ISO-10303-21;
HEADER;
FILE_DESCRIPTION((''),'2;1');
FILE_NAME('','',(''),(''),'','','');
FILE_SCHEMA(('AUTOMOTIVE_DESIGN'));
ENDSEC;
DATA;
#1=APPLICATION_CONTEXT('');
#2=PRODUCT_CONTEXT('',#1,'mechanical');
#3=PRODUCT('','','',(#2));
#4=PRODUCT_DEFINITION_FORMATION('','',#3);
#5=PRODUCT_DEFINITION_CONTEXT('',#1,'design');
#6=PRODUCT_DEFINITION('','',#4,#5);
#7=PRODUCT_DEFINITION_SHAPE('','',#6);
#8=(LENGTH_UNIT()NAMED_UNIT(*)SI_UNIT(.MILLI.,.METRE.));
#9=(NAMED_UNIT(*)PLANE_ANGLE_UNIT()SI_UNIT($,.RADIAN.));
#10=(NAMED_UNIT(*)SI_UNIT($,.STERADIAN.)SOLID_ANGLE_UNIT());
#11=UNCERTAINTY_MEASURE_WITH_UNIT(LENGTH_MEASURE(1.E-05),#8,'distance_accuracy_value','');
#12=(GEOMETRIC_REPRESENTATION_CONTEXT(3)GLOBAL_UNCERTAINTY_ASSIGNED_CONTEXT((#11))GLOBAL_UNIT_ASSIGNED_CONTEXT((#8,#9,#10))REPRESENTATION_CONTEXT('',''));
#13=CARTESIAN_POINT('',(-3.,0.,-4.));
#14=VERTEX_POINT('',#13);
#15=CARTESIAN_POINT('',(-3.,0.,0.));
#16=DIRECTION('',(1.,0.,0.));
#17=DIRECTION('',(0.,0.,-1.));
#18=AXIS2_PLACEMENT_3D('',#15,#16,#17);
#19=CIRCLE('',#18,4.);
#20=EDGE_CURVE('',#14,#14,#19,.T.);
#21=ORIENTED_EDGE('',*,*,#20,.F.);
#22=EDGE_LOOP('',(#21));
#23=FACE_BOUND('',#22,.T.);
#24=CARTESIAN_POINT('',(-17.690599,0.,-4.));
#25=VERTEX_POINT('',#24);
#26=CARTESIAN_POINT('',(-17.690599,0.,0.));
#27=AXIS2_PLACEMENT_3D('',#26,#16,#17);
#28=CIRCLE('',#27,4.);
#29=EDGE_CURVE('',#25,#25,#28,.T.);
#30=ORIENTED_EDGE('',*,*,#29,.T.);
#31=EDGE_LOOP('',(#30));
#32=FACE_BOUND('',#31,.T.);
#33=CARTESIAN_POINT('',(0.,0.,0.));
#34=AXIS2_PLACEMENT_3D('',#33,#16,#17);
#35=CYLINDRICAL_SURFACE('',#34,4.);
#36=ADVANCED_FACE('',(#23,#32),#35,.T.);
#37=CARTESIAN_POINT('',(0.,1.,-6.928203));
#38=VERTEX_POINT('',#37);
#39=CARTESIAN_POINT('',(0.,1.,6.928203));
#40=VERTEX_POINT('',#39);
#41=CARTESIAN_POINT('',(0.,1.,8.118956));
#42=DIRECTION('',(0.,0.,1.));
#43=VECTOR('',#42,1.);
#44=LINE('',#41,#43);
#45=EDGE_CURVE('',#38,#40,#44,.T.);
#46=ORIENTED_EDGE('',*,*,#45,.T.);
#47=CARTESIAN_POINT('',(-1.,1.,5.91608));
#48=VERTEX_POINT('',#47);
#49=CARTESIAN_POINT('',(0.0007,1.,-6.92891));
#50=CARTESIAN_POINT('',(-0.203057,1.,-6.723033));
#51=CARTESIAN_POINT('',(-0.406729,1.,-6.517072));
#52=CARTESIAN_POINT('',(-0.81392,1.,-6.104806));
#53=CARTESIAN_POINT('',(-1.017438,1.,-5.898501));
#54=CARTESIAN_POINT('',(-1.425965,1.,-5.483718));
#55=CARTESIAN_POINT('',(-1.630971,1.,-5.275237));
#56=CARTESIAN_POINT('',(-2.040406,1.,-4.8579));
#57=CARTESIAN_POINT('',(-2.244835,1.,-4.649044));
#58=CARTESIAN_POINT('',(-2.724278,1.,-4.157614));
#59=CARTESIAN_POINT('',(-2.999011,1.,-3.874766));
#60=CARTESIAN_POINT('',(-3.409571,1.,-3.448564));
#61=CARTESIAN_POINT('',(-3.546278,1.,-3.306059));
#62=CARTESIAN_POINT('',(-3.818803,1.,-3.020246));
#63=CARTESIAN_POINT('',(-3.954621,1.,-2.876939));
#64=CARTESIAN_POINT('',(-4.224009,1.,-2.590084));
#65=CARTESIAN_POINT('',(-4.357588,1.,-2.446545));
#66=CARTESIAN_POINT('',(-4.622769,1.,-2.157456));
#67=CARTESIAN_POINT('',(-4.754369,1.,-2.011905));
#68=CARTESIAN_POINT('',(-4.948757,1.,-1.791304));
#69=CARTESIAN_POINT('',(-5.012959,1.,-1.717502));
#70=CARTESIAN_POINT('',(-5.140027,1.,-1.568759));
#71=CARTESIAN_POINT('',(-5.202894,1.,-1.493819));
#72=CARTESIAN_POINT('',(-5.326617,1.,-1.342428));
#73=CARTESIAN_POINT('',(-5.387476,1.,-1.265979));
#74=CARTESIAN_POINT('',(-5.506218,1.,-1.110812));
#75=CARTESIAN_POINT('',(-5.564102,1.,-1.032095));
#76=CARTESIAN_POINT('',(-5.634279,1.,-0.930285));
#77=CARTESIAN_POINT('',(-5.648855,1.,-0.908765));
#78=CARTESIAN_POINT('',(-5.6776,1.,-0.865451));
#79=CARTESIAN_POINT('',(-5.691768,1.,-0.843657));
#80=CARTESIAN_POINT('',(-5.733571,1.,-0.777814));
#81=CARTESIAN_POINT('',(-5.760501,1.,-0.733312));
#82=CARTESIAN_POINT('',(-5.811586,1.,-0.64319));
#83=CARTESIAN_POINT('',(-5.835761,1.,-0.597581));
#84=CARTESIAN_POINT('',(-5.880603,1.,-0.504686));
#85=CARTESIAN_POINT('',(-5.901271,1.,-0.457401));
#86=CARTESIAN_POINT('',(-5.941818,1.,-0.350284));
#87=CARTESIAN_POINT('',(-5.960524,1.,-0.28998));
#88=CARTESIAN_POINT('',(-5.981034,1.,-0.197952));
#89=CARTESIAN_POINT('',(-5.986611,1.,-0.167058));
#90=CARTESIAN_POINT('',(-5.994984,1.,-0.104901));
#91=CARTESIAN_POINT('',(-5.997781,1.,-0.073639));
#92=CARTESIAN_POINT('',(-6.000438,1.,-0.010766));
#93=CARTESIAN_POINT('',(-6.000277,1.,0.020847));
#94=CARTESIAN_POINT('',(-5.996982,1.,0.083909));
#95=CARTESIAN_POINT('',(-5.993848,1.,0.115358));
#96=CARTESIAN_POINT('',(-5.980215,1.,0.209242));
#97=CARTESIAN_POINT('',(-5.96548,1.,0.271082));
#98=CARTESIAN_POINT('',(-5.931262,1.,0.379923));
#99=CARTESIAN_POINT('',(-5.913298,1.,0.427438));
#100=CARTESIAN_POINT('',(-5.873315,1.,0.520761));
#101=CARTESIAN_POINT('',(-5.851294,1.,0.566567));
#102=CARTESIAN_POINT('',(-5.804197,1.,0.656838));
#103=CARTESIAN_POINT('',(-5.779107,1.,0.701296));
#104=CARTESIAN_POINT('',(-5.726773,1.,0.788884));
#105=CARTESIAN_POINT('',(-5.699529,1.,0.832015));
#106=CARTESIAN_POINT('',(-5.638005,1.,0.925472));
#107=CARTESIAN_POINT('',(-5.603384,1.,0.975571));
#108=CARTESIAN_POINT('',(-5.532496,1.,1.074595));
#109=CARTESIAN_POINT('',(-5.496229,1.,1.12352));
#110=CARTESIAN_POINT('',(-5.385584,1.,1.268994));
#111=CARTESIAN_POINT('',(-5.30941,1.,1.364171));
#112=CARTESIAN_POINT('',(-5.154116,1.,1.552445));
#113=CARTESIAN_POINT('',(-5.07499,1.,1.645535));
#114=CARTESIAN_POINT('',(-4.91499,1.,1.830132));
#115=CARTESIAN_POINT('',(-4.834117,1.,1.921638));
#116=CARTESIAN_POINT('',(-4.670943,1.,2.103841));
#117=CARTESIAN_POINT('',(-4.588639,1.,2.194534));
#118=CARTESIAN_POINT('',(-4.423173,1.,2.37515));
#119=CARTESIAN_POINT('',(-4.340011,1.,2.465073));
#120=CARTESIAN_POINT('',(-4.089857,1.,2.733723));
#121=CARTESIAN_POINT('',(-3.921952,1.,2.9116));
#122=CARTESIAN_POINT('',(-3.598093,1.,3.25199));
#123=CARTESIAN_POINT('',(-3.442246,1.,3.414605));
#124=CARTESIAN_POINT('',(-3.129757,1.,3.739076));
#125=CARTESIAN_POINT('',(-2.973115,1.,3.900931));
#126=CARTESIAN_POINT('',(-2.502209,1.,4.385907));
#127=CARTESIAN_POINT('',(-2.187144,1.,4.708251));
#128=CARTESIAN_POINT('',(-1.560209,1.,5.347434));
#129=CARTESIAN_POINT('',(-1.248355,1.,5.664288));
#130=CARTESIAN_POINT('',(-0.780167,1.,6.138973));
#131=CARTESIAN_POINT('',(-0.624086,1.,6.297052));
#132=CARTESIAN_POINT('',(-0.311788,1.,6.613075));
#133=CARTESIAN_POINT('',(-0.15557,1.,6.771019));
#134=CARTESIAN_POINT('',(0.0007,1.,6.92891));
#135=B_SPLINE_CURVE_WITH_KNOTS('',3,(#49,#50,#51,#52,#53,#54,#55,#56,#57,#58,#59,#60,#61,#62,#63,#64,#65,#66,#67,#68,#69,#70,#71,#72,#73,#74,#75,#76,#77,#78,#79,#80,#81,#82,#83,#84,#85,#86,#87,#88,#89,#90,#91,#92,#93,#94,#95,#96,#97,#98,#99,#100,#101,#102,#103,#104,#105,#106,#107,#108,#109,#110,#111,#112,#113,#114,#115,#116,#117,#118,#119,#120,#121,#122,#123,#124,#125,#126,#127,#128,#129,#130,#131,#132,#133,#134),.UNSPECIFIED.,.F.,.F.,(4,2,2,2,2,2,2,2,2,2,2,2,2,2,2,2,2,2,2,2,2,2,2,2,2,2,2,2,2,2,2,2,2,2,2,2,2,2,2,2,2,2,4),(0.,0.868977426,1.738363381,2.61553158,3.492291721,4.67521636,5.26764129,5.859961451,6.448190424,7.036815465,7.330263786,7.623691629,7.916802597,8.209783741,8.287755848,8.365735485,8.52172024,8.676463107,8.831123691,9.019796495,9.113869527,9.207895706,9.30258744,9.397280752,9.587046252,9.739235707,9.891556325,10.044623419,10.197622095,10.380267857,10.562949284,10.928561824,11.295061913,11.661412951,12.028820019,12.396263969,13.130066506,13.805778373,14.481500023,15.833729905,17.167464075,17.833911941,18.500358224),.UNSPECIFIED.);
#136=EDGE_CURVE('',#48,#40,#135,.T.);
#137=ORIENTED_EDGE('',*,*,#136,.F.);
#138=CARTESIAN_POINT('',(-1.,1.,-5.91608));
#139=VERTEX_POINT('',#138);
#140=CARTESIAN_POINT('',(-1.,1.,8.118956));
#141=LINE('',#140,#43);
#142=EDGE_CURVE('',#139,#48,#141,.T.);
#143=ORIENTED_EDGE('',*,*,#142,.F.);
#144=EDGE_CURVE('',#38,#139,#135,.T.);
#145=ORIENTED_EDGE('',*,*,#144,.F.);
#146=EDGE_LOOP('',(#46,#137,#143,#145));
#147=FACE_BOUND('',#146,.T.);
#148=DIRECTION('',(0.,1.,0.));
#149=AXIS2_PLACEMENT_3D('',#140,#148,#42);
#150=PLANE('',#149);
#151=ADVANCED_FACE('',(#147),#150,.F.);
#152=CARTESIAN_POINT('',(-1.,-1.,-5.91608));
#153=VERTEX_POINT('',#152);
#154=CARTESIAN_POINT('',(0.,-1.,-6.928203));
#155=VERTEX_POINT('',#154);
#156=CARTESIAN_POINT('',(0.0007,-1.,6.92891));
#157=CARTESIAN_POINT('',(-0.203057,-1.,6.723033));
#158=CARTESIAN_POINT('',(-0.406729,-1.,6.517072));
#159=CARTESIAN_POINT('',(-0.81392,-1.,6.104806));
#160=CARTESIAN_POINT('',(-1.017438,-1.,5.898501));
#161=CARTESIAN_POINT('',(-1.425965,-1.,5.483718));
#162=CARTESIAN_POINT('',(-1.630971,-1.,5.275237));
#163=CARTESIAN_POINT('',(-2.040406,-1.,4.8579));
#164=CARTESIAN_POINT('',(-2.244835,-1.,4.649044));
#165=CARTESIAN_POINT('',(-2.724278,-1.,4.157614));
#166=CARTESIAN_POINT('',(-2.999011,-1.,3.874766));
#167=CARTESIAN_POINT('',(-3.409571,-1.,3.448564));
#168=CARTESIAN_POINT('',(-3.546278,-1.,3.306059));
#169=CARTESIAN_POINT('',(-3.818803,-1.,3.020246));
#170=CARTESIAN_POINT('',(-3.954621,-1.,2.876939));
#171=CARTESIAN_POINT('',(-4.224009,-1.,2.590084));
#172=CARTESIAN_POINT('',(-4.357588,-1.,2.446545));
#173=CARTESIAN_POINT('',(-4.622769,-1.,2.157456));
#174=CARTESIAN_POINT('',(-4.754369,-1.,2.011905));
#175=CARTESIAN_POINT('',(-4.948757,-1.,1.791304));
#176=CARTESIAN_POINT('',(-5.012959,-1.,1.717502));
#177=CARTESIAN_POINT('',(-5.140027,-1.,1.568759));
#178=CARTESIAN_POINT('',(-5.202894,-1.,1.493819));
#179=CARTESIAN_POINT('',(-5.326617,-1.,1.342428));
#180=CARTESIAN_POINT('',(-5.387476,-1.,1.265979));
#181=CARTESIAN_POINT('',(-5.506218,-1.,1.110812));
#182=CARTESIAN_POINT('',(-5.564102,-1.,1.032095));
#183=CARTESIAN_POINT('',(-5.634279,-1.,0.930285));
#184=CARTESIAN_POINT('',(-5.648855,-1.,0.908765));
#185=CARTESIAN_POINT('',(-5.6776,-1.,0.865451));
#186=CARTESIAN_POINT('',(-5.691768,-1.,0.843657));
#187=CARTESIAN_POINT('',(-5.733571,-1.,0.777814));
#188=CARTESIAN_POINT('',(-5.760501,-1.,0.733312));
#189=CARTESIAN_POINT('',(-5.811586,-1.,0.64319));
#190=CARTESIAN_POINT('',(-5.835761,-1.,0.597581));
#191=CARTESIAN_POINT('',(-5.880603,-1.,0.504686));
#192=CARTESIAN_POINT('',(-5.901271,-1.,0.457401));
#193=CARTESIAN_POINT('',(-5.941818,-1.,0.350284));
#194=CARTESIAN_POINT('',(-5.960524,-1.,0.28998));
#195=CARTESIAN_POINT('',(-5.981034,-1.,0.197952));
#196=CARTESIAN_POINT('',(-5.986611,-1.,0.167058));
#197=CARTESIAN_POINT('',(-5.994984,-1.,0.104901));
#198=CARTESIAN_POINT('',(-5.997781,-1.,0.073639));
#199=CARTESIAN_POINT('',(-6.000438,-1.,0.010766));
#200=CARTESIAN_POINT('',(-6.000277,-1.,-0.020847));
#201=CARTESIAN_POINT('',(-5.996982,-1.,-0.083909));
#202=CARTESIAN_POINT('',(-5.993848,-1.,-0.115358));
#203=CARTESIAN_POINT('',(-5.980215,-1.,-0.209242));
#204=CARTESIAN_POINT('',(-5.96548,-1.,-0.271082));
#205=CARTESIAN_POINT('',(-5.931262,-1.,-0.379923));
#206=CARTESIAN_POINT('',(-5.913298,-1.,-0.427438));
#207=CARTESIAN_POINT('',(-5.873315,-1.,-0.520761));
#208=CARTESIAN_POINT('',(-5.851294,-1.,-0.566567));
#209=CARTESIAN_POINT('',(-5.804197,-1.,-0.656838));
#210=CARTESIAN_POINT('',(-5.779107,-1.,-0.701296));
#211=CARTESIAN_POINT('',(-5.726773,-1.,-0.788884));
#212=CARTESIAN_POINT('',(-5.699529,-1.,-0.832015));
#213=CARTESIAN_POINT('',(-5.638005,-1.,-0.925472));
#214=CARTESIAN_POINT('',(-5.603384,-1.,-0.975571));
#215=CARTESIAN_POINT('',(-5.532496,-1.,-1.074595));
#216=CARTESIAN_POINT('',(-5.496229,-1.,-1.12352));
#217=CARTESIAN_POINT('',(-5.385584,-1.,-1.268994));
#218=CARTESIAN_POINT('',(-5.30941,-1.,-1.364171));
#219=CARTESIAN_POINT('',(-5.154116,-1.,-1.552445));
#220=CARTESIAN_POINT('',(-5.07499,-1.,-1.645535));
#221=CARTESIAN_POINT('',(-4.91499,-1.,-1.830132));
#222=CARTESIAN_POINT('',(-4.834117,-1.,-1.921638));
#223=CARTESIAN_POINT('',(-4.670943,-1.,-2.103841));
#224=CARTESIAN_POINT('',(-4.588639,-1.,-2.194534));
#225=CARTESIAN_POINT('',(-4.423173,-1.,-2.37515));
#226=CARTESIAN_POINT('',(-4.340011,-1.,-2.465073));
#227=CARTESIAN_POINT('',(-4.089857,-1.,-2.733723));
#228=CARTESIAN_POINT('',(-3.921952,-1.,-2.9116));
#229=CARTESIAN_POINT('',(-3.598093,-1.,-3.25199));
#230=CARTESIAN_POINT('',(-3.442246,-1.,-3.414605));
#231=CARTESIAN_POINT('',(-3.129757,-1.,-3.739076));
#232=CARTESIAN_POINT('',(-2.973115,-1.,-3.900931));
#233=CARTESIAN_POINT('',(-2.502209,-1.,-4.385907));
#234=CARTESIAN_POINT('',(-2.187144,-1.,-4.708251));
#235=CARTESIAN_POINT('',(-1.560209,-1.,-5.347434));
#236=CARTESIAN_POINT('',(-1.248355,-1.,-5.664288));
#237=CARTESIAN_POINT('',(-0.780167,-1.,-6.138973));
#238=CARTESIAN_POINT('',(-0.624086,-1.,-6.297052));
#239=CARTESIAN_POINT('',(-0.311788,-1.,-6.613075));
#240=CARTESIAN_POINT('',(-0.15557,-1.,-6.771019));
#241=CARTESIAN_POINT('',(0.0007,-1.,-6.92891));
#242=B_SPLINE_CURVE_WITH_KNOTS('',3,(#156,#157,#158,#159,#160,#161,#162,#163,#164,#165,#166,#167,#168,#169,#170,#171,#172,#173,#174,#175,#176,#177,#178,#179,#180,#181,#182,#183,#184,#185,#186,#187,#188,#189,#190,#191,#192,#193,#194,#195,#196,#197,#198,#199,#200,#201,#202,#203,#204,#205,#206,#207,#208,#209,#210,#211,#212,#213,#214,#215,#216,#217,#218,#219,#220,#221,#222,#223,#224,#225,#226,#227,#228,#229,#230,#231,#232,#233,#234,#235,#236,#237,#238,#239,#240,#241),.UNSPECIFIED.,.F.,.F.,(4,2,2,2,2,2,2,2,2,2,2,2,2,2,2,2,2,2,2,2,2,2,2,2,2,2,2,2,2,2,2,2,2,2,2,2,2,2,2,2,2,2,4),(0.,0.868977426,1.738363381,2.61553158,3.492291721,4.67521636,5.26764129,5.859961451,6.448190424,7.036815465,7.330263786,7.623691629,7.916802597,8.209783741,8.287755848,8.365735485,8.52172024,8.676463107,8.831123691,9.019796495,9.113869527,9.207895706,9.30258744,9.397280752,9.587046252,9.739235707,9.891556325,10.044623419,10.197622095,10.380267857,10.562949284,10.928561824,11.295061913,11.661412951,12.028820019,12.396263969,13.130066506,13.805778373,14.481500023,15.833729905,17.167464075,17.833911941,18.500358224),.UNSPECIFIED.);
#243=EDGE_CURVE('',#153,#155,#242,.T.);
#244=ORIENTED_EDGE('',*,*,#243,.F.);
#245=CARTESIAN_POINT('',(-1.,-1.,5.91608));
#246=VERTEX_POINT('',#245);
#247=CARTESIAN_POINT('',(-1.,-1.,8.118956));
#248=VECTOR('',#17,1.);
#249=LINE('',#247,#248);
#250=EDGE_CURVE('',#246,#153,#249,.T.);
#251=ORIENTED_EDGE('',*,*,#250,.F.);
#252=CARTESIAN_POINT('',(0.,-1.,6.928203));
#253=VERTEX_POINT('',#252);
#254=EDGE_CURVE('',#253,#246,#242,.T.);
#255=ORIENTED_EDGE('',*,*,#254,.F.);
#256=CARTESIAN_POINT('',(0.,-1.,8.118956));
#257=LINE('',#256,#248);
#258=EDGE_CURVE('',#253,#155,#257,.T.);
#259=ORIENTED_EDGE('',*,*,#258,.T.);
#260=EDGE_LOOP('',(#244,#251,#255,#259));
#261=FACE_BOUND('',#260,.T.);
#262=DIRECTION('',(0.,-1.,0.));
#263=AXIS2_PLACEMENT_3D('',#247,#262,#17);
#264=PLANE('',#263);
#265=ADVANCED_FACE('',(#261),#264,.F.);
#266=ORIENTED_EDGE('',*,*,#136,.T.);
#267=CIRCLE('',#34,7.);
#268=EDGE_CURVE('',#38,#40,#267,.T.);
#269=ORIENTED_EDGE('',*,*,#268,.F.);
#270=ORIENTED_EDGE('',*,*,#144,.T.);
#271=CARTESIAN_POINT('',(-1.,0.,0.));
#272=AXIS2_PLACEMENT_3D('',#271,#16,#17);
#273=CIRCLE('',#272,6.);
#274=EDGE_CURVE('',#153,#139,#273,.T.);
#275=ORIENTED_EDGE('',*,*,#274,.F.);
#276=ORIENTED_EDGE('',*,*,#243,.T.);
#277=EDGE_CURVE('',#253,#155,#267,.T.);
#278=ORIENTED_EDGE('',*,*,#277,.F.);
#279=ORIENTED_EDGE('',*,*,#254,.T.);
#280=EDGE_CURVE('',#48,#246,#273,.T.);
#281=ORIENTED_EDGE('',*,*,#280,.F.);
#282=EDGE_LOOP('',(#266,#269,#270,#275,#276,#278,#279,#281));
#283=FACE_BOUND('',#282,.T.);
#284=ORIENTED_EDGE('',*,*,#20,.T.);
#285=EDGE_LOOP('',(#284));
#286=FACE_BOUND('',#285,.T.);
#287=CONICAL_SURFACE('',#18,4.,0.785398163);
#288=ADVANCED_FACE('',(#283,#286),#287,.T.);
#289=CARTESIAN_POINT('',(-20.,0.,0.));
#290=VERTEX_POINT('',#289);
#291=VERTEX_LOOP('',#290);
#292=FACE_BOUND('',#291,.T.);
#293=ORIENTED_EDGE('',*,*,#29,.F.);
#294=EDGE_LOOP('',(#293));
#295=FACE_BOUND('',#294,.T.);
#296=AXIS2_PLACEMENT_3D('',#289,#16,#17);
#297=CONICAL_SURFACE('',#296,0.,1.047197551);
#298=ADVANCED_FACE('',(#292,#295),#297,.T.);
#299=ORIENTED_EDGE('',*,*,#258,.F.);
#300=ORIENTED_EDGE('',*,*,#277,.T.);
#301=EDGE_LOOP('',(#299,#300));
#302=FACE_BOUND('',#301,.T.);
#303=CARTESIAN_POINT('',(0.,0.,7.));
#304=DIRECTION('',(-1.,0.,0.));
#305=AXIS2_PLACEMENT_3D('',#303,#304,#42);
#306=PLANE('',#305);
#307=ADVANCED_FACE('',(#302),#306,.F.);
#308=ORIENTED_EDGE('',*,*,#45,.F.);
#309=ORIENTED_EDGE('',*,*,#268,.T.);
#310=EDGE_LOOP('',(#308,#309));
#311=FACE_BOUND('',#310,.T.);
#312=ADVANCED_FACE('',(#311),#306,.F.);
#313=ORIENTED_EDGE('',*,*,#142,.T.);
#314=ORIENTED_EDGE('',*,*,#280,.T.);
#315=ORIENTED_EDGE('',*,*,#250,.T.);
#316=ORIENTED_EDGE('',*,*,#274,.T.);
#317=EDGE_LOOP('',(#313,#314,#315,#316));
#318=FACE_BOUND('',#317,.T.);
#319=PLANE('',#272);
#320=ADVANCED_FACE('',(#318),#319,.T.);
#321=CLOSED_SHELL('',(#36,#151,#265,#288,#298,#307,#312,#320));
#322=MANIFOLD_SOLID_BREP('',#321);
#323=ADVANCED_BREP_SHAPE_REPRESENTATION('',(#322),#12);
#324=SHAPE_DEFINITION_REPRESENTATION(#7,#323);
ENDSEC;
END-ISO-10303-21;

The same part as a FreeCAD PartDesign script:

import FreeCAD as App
import Part
import Sketcher
from FreeCAD import Vector
Q = App.Units.Quantity


def add_polygon(sketch, points):
    """Adds a closed chain of lines whose ends are joined by coincident constraints."""
    first, n = sketch.GeometryCount, len(points)
    for a, b in zip(points, points[1:] + points[:1]):
        sketch.addGeometry(Part.LineSegment(App.Vector(*a, 0), App.Vector(*b, 0)), False)
    for i in range(n):
        sketch.addConstraint(Sketcher.Constraint("Coincident", first + i, 2, first + (i + 1) % n, 1))

doc = App.newDocument("Part")
params = doc.addObject("Spreadsheet::Sheet", "Params")
for row, (alias, value) in enumerate([
    ("sketch1_width", "20 mm"),
    ("sketch1_height", "7 mm"),
    ("revolution_angle", "360 deg"),
    ("sketch2_width", "2 mm"),
    ("pocket1_length", "1 mm"),
], start=1):
    params.set(f"A{row}", alias)
    params.set(f"B{row}", "=" + value)
    params.setAlias(f"B{row}", alias)

body = doc.addObject("PartDesign::Body", "Body")

# Sketch on XZ plane
sketch1 = body.newObject("Sketcher::SketchObject", "Sketch")
sketch1.AttachmentSupport = (doc.getObject("XZ_Plane"), [""])
sketch1.MapMode = "FlatFace"
add_polygon(sketch1, [(-20, 0), (-17.7, 4), (-3, 4), (0, 7), (0, 0)])  # lines 0-4
sketch1.addConstraint([
    Sketcher.Constraint("Horizontal", 1),
    Sketcher.Constraint("Vertical", 3),
    Sketcher.Constraint("Horizontal", 4),
    Sketcher.Constraint("Coincident", 3, 2, -1, 1),
    Sketcher.Constraint("DistanceX", 4, 2, 4, 1, 20.0),
    Sketcher.Constraint("DistanceY", 3, 2, 3, 1, 7.0),
    Sketcher.Constraint("Angle", 0, Q("60 deg")),
    Sketcher.Constraint("Angle", 2, Q("45 deg")),
    Sketcher.Constraint("DistanceY", -1, 1, 0, 2, 4.0),
])
sketch1.setExpression("Constraints[9]", "Params.sketch1_width")
sketch1.setExpression("Constraints[10]", "Params.sketch1_height")
revolution = body.newObject("PartDesign::Revolution", "Revolution")
revolution.Profile = sketch1
revolution.ReferenceAxis = (sketch1, ["H_Axis"])
revolution.setExpression("Angle", "Params.revolution_angle")

# Sketch on YZ plane
sketch2 = body.newObject("Sketcher::SketchObject", "Sketch001")
sketch2.AttachmentSupport = (doc.getObject("YZ_Plane"), [""])
sketch2.MapMode = "FlatFace"
add_polygon(sketch2, [(1, 8.1), (-1, 8.1), (-1, -8.1), (1, -8.1)])  # lines 0-3
sketch2.addConstraint([
    Sketcher.Constraint("Horizontal", 0),
    Sketcher.Constraint("Vertical", 1),
    Sketcher.Constraint("Horizontal", 2),
    Sketcher.Constraint("Vertical", 3),
    Sketcher.Constraint("Symmetric", 0, 2, 2, 2, -1, 1),
    Sketcher.Constraint("DistanceX", 0, 2, 0, 1, 2.0),
    Sketcher.Constraint("DistanceY", 1, 2, 1, 1, 16.237912),
])
sketch2.setExpression("Constraints[9]", "Params.sketch2_width")
pocket1 = body.newObject("PartDesign::Pocket", "Pocket")
pocket1.Profile = sketch2
pocket1.setExpression("Length", "Params.pocket1_length")

doc.recompute()
